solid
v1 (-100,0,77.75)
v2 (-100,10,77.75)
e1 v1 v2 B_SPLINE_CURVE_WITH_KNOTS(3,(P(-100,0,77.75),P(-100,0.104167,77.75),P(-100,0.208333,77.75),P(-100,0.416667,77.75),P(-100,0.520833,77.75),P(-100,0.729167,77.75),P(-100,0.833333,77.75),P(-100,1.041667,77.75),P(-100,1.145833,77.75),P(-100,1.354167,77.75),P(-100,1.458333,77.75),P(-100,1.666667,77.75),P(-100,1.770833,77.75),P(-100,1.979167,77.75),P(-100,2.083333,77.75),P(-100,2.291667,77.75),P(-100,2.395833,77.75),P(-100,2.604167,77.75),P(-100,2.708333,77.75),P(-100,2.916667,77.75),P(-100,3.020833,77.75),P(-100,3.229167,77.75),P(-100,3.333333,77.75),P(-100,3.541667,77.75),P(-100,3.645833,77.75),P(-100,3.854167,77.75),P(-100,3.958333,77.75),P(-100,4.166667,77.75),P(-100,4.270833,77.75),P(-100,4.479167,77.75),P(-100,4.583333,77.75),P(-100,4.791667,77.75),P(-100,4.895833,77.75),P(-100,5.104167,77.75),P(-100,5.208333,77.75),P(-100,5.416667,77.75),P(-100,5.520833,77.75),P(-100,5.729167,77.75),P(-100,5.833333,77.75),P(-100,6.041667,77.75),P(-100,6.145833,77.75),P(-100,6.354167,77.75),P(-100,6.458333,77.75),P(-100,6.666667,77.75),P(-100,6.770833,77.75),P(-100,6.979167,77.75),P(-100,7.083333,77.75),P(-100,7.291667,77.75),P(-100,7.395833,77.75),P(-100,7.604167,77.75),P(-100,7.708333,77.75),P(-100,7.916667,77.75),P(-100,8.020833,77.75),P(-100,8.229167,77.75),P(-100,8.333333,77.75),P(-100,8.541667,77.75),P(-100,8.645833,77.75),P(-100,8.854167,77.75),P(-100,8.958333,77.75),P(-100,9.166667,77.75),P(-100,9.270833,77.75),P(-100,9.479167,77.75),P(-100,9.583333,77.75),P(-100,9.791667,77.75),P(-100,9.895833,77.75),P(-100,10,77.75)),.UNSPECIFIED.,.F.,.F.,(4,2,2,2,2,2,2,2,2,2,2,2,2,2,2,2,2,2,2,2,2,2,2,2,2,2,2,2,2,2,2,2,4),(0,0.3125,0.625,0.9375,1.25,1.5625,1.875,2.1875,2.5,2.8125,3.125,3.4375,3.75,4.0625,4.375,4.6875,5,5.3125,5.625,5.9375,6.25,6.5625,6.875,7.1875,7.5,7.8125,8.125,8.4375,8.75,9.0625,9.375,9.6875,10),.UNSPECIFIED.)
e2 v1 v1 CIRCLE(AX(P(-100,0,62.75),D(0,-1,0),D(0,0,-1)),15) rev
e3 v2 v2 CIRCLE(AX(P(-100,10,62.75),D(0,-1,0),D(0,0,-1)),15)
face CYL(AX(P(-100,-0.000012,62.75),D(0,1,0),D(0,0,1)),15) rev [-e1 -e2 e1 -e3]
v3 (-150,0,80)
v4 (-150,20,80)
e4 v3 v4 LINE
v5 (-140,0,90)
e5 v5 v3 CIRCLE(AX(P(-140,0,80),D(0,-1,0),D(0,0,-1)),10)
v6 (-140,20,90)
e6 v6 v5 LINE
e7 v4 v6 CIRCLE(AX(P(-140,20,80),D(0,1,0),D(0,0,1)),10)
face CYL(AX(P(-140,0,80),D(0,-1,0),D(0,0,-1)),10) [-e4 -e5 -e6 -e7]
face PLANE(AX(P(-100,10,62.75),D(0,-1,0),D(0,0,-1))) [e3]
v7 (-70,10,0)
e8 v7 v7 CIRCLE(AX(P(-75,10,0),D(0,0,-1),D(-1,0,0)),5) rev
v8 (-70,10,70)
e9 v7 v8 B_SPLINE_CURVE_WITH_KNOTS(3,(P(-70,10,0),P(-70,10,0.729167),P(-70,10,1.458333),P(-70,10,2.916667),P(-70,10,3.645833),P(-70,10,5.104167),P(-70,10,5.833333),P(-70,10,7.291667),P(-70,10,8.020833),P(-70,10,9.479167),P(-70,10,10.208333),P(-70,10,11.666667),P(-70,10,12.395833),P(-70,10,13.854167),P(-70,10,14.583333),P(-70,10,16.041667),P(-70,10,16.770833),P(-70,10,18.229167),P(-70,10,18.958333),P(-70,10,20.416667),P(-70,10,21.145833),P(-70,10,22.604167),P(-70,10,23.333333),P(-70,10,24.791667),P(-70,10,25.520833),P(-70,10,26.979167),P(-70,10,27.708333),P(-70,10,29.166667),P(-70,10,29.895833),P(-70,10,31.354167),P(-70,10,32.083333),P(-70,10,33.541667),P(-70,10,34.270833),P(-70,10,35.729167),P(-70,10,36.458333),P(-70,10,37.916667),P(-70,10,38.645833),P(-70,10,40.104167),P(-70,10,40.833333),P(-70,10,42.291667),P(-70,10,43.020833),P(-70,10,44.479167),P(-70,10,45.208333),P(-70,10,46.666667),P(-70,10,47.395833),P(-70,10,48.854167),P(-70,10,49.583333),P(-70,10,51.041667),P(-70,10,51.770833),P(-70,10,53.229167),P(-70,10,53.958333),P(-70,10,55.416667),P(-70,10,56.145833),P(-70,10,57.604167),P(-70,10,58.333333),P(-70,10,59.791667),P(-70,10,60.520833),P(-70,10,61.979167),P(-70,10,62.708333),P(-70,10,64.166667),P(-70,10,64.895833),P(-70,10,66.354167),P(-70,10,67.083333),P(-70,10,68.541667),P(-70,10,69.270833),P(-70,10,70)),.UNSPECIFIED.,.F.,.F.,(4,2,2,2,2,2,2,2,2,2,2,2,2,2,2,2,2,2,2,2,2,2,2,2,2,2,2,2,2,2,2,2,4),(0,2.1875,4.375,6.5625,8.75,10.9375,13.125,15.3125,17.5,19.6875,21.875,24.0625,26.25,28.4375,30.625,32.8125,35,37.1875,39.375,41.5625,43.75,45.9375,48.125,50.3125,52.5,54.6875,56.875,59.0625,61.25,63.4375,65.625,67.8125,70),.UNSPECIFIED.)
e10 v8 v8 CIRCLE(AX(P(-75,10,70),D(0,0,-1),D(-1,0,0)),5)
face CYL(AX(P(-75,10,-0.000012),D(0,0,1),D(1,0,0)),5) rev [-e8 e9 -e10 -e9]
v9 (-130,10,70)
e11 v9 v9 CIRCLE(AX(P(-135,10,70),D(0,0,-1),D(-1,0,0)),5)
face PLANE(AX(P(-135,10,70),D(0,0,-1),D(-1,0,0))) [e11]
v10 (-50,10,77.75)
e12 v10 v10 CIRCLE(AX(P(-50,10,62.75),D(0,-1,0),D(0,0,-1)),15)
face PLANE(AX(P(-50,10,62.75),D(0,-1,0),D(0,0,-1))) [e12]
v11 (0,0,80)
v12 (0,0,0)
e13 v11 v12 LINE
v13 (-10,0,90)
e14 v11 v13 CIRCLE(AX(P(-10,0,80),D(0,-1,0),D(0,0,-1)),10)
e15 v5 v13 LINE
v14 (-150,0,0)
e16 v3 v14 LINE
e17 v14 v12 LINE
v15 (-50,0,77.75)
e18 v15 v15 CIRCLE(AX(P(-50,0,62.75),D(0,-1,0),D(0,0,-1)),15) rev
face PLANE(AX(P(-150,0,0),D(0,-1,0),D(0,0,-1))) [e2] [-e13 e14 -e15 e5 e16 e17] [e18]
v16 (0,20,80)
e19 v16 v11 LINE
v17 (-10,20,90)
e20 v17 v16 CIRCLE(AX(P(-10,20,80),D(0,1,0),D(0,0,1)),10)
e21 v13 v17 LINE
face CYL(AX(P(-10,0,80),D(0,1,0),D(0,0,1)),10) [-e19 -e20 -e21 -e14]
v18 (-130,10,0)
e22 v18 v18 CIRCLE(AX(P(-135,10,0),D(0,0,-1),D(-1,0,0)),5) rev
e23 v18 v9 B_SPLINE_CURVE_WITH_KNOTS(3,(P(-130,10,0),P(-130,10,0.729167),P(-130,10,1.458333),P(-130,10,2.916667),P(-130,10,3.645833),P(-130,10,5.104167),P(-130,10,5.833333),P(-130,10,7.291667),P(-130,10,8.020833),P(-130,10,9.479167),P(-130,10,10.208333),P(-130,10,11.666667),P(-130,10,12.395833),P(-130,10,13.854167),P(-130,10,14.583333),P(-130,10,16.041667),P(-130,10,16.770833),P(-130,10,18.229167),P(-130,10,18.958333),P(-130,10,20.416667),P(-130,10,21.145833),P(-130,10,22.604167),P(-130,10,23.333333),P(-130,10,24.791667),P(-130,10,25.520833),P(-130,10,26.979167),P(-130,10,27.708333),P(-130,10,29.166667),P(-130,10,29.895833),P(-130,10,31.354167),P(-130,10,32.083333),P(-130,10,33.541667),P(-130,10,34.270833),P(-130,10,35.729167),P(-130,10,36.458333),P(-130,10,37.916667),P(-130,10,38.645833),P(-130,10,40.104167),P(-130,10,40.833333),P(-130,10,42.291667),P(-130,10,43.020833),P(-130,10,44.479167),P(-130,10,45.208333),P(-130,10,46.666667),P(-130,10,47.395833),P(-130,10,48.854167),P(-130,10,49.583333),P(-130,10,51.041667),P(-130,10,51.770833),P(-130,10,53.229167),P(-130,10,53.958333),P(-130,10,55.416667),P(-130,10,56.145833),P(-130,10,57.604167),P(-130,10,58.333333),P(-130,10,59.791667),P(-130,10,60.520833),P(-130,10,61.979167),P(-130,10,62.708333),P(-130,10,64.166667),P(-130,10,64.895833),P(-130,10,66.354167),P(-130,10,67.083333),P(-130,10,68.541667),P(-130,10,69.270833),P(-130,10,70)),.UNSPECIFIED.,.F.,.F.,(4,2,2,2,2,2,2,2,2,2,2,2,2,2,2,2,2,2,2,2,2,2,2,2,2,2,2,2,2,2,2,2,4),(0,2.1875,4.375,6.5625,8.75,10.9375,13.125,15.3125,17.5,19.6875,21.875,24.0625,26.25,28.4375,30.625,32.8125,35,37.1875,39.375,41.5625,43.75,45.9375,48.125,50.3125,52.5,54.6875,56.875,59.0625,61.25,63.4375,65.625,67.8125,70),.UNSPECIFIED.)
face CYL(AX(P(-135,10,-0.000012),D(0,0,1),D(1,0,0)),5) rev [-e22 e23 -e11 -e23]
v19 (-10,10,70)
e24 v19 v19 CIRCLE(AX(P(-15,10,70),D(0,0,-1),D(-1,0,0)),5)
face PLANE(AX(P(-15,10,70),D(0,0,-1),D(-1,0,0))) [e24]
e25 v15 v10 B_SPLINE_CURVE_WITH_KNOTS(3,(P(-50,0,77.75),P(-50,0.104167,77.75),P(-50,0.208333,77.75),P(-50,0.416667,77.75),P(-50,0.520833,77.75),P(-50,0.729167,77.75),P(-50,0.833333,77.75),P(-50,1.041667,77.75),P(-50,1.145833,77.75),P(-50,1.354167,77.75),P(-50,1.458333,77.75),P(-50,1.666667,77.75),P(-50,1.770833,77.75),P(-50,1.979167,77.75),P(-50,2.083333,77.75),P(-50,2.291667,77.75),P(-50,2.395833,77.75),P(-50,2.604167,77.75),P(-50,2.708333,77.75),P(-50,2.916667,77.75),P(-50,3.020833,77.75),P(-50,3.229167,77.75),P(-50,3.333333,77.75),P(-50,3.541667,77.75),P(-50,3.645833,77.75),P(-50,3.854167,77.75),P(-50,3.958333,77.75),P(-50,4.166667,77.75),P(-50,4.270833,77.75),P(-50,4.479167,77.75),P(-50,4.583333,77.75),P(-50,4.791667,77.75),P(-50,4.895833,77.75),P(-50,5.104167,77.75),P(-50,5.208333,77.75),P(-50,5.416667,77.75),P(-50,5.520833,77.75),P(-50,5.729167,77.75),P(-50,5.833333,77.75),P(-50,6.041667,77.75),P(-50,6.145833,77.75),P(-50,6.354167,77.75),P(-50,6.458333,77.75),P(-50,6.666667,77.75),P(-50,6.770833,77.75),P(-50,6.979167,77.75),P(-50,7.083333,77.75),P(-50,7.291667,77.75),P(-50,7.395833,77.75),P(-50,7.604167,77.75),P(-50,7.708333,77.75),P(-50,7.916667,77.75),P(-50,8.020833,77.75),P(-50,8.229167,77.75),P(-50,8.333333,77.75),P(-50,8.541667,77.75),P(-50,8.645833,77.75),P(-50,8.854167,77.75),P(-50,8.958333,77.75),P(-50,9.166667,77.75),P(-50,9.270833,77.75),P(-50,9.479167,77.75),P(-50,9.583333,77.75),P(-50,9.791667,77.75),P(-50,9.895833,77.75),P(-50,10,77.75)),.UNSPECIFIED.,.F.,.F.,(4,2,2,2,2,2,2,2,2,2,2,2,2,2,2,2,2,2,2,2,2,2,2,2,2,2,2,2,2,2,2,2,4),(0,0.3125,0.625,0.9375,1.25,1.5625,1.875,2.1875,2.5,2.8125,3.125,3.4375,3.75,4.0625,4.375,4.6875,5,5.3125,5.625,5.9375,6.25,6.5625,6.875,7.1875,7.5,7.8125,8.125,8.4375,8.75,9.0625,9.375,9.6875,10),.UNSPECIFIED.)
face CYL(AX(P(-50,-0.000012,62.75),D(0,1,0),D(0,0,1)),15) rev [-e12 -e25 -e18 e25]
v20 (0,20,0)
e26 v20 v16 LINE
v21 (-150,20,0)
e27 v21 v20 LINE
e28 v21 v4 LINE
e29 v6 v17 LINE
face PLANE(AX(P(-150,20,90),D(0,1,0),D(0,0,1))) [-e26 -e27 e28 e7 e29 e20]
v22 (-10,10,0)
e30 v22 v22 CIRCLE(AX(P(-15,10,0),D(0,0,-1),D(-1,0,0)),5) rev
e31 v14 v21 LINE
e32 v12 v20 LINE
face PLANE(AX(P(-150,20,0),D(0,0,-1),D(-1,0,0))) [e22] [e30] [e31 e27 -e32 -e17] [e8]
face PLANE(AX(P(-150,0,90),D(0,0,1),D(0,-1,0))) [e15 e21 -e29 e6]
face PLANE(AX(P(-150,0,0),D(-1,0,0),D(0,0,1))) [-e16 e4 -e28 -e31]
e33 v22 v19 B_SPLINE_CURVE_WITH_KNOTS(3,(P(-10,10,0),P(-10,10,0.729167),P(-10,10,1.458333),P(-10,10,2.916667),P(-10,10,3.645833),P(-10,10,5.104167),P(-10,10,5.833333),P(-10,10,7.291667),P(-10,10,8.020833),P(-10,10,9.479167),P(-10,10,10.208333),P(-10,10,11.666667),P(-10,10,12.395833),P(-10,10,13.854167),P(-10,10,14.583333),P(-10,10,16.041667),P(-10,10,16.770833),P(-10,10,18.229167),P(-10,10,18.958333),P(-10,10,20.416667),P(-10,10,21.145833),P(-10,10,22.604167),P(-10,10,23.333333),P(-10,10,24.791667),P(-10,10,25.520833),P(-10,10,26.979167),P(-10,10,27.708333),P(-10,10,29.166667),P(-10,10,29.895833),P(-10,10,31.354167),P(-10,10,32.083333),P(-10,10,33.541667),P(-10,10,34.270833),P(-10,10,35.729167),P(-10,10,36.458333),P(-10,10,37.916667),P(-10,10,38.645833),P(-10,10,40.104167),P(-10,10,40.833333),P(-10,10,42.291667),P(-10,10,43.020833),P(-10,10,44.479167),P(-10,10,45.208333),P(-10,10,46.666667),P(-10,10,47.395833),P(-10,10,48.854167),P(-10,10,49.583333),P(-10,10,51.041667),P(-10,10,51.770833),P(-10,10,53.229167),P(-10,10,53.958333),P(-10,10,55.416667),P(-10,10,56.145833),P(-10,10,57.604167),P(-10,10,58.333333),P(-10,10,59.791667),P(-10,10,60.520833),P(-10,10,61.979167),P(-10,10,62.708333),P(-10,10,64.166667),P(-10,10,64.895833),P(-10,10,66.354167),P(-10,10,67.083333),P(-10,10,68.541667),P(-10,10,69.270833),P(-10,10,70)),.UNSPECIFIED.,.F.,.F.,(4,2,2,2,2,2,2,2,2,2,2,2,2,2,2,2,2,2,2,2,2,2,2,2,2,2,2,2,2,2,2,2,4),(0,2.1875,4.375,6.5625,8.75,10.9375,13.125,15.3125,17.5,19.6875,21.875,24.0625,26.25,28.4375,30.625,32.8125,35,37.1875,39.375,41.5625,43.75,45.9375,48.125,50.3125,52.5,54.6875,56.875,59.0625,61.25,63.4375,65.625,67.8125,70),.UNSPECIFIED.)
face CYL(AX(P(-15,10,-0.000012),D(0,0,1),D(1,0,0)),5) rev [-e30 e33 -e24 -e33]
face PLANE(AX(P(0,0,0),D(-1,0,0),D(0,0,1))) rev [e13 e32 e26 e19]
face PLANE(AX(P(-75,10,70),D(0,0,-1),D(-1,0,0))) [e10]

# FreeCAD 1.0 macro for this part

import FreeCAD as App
import Part
import Sketcher

V = App.Vector


def edges_at(feature, points):
    """Names of the edges that pass closest to the given points."""
    edges = feature.Shape.Edges
    near = lambda p: min(range(len(edges)), key=lambda i: edges[i].distToShape(Part.Vertex(*p))[0])
    return sorted({f"Edge{near(p) + 1}" for p in points})

doc = App.newDocument("Part")
params = doc.addObject("Spreadsheet::Sheet", "Params")
for row, (alias, value) in enumerate([
    ("sketch1_width", "20 mm"),
    ("sketch1_height", "90 mm"),
    ("pad1_length", "150 mm"),
    ("sketch2_diameter", "30 mm"),
    ("pocket1_length", "177.068169 mm"),
    ("pocket1_length2", "10 mm"),
    ("sketch3_diameter", "10 mm"),
    ("pocket2_length", "177.068169 mm"),
    ("pocket2_length2", "70 mm"),
    ("fillet_radius", "10 mm"),
], start=1):
    params.set(f"A{row}", alias)
    params.set(f"B{row}", "=" + value)
    params.setAlias(f"B{row}", alias)

body = doc.addObject("PartDesign::Body", "Body")

# Sketch on YZ plane
sketch1 = doc.addObject("Sketcher::SketchObject", "Sketch")
body.addObject(sketch1)
sketch1.AttachmentSupport = (doc.YZ_Plane, [""])
sketch1.MapMode = "FlatFace"
sketch1.addGeometry(Part.LineSegment(V(20, 90, 0), V(0, 90, 0)), False)
sketch1.addGeometry(Part.LineSegment(V(0, 90, 0), V(0, 0, 0)), False)
sketch1.addGeometry(Part.LineSegment(V(0, 0, 0), V(20, 0, 0)), False)
sketch1.addGeometry(Part.LineSegment(V(20, 0, 0), V(20, 90, 0)), False)
sketch1.addConstraint(Sketcher.Constraint("Coincident", 0, 2, 1, 1))
sketch1.addConstraint(Sketcher.Constraint("Coincident", 1, 2, 2, 1))
sketch1.addConstraint(Sketcher.Constraint("Coincident", 2, 2, 3, 1))
sketch1.addConstraint(Sketcher.Constraint("Coincident", 3, 2, 0, 1))
sketch1.addConstraint(Sketcher.Constraint("Horizontal", 0))
sketch1.addConstraint(Sketcher.Constraint("Vertical", 1))
sketch1.addConstraint(Sketcher.Constraint("Horizontal", 2))
sketch1.addConstraint(Sketcher.Constraint("Vertical", 3))
sketch1.addConstraint(Sketcher.Constraint("Coincident", 1, 2, -1, 1))
sketch1.addConstraint(Sketcher.Constraint("DistanceX", 0, 2, 0, 1, 20.0))
sketch1.addConstraint(Sketcher.Constraint("DistanceY", 1, 2, 1, 1, 90.0))
sketch1.setExpression("Constraints[9]", "Params.sketch1_width")
sketch1.setExpression("Constraints[10]", "Params.sketch1_height")
pad1 = doc.addObject("PartDesign::Pad", "Pad")
body.addObject(pad1)
pad1.Profile = sketch1
pad1.setExpression("Length", "Params.pad1_length")
pad1.Reversed = True

# Sketch on XZ plane
sketch2 = doc.addObject("Sketcher::SketchObject", "Sketch001")
body.addObject(sketch2)
sketch2.AttachmentSupport = (doc.XZ_Plane, [""])
sketch2.MapMode = "FlatFace"
sketch2.addGeometry(Part.Circle(V(-50, 63, 0), V(0, 0, 1), 15), False)
sketch2.addGeometry(Part.Circle(V(-100, 63, 0), V(0, 0, 1), 15), False)
sketch2.addConstraint(Sketcher.Constraint("Equal", 0, 1))
sketch2.addConstraint(Sketcher.Constraint("Horizontal", 0, 3, 1, 3))
sketch2.addConstraint(Sketcher.Constraint("Diameter", 0, 30.0))
sketch2.addConstraint(Sketcher.Constraint("DistanceX", 0, 3, -1, 1, 50.0))
sketch2.addConstraint(Sketcher.Constraint("DistanceX", 1, 3, -1, 1, 100.0))
sketch2.addConstraint(Sketcher.Constraint("DistanceY", -1, 1, 0, 3, 62.75))
sketch2.setExpression("Constraints[2]", "Params.sketch2_diameter")
pocket1 = doc.addObject("PartDesign::Pocket", "Pocket")
body.addObject(pocket1)
pocket1.Profile = sketch2
pocket1.Type = "TwoLengths"
pocket1.setExpression("Length", "Params.pocket1_length")
pocket1.setExpression("Length2", "Params.pocket1_length2")
pocket1.Reversed = True

# Sketch on XY plane
sketch3 = doc.addObject("Sketcher::SketchObject", "Sketch002")
body.addObject(sketch3)
sketch3.AttachmentSupport = (doc.XY_Plane, [""])
sketch3.MapMode = "FlatFace"
sketch3.addGeometry(Part.Circle(V(-15, 10, 0), V(0, 0, 1), 5), False)
sketch3.addGeometry(Part.Circle(V(-75, 10, 0), V(0, 0, 1), 5), False)
sketch3.addGeometry(Part.Circle(V(-135, 10, 0), V(0, 0, 1), 5), False)
sketch3.addConstraint(Sketcher.Constraint("Equal", 0, 1))
sketch3.addConstraint(Sketcher.Constraint("Equal", 1, 2))
sketch3.addConstraint(Sketcher.Constraint("Horizontal", 0, 3, 1, 3))
sketch3.addConstraint(Sketcher.Constraint("Horizontal", 1, 3, 2, 3))
sketch3.addConstraint(Sketcher.Constraint("Diameter", 0, 10.0))
sketch3.addConstraint(Sketcher.Constraint("DistanceX", 0, 3, -1, 1, 15.0))
sketch3.addConstraint(Sketcher.Constraint("DistanceY", -1, 1, 0, 3, 10.0))
sketch3.addConstraint(Sketcher.Constraint("DistanceX", 1, 3, -1, 1, 75.0))
sketch3.addConstraint(Sketcher.Constraint("DistanceX", 2, 3, -1, 1, 135.0))
sketch3.setExpression("Constraints[4]", "Params.sketch3_diameter")
pocket2 = doc.addObject("PartDesign::Pocket", "Pocket001")
body.addObject(pocket2)
pocket2.Profile = sketch3
pocket2.Type = "TwoLengths"
pocket2.setExpression("Length", "Params.pocket2_length")
pocket2.setExpression("Length2", "Params.pocket2_length2")
doc.recompute()

fillet = doc.addObject("PartDesign::Fillet", "Fillet")
body.addObject(fillet)
fillet.Base = (pocket2, edges_at(pocket2, [(-150, 10, 90), (0, 10, 90)]))
fillet.setExpression("Radius", "Params.fillet_radius")

doc.recompute()
